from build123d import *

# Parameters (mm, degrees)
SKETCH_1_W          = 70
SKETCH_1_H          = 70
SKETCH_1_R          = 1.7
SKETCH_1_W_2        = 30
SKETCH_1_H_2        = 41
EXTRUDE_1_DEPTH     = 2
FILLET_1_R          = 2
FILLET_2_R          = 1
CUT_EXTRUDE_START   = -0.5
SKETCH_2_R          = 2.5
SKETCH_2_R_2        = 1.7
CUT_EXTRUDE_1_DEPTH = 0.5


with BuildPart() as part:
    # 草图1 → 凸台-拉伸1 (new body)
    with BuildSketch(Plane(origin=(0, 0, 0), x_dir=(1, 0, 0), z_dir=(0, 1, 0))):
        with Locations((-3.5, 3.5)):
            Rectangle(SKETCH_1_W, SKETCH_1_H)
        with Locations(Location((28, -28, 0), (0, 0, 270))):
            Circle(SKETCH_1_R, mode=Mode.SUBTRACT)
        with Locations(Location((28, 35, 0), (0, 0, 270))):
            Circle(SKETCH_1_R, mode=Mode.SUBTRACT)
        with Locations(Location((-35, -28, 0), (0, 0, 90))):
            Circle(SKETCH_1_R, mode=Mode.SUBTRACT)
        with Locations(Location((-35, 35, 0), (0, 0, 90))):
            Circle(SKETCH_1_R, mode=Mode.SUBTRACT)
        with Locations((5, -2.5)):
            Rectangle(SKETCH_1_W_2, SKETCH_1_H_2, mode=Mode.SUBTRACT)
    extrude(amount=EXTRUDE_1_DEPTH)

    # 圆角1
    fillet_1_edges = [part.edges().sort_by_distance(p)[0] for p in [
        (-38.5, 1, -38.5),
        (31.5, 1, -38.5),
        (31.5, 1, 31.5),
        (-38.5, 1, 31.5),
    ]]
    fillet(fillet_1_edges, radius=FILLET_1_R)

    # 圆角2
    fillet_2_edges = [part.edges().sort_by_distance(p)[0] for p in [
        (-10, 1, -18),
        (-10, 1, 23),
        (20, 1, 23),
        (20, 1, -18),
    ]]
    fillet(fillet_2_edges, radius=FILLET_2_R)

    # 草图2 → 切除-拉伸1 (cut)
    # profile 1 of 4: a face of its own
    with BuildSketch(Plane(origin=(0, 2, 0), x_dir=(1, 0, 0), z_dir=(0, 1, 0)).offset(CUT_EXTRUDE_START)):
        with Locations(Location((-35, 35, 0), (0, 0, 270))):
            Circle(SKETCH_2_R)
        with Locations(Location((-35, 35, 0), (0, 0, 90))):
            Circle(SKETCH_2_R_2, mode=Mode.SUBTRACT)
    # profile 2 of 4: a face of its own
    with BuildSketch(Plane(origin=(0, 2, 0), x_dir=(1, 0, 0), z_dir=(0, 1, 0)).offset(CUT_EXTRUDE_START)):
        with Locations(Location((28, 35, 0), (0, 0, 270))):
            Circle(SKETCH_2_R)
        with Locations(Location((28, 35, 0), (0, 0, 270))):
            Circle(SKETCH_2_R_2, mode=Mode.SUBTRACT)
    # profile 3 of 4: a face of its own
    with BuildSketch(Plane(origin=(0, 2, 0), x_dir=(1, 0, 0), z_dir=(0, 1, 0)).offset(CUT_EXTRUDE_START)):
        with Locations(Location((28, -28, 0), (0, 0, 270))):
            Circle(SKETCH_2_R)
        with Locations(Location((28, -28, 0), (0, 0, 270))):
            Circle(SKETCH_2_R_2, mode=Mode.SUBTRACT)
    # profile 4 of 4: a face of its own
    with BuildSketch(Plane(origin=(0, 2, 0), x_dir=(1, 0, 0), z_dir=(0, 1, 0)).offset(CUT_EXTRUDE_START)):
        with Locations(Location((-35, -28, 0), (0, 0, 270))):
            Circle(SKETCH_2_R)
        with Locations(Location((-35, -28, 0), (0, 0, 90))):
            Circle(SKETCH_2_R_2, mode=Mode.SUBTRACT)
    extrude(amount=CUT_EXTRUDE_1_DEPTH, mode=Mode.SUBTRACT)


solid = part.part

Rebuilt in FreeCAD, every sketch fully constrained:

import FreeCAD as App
import Part
import Sketcher
from FreeCAD import Vector
Q = App.Units.Quantity


def edges_at(feature, points):
    """Names of the edges that pass closest to the given points."""
    edges = feature.Shape.Edges
    near = lambda p: min(range(len(edges)), key=lambda i: edges[i].distToShape(Part.Vertex(*p))[0])
    return sorted({f"Edge{near(p) + 1}" for p in points})

doc = App.newDocument("Part")
body = doc.addObject("PartDesign::Body", "Body")

# Sketch on XZ plane
sketch1 = doc.addObject("Sketcher::SketchObject", "Sketch")
body.addObject(sketch1)
sketch1.AttachmentSupport = (doc.XZ_Plane, [""])
sketch1.MapMode = "FlatFace"
sketch1.addGeometry([
    Part.LineSegment(Vector(-38.5, -38.5, 0), Vector(-38.5, 31.5, 0)),  # 0
    Part.LineSegment(Vector(-38.5, 31.5, 0), Vector(31.5, 31.5, 0)),  # 1
    Part.LineSegment(Vector(31.5, 31.5, 0), Vector(31.5, -38.5, 0)),  # 2
    Part.LineSegment(Vector(31.5, -38.5, 0), Vector(-38.5, -38.5, 0)),  # 3
    Part.Circle(Vector(-35, 28, 0), Vector(0, 0, 1), 1.7),  # 4
    Part.Circle(Vector(28, 28, 0), Vector(0, 0, 1), 1.7),  # 5
    Part.LineSegment(Vector(20, 23, 0), Vector(-10, 23, 0)),  # 6
    Part.LineSegment(Vector(-10, 23, 0), Vector(-10, -18, 0)),  # 7
    Part.LineSegment(Vector(-10, -18, 0), Vector(20, -18, 0)),  # 8
    Part.LineSegment(Vector(20, -18, 0), Vector(20, 23, 0)),  # 9
    Part.Circle(Vector(-35, -35, 0), Vector(0, 0, 1), 1.7),  # 10
    Part.Circle(Vector(28, -35, 0), Vector(0, 0, 1), 1.7),  # 11
], False)
sketch1.addConstraint([
    Sketcher.Constraint("Coincident", 0, 2, 1, 1),
    Sketcher.Constraint("Coincident", 1, 2, 2, 1),
    Sketcher.Constraint("Coincident", 2, 2, 3, 1),
    Sketcher.Constraint("Coincident", 3, 2, 0, 1),
    Sketcher.Constraint("Coincident", 6, 2, 7, 1),
    Sketcher.Constraint("Coincident", 7, 2, 8, 1),
    Sketcher.Constraint("Coincident", 8, 2, 9, 1),
    Sketcher.Constraint("Coincident", 9, 2, 6, 1),
    Sketcher.Constraint("Vertical", 0),
    Sketcher.Constraint("Horizontal", 1),
    Sketcher.Constraint("Vertical", 2),
    Sketcher.Constraint("Horizontal", 3),
    Sketcher.Constraint("Horizontal", 6),
    Sketcher.Constraint("Vertical", 7),
    Sketcher.Constraint("Horizontal", 8),
    Sketcher.Constraint("Vertical", 9),
    Sketcher.Constraint("Equal", 4, 5),
    Sketcher.Constraint("Equal", 5, 10),
    Sketcher.Constraint("Equal", 10, 11),
    Sketcher.Constraint("Horizontal", 4, 3, 5, 3),
    Sketcher.Constraint("Horizontal", 10, 3, 11, 3),
    Sketcher.Constraint("Vertical", 4, 3, 10, 3),
    Sketcher.Constraint("Vertical", 5, 3, 11, 3),
    Sketcher.Constraint("Equal", 3, 0),
    Sketcher.Constraint("Diameter", 4, Q("3.4 mm")),
    Sketcher.Constraint("DistanceX", 1, 1, 1, 2, Q("70 mm")),
    Sketcher.Constraint("DistanceX", 6, 2, 6, 1, Q("30 mm")),
    Sketcher.Constraint("DistanceY", 7, 2, 7, 1, Q("41 mm")),
    Sketcher.Constraint("DistanceX", 4, 3, -1, 1, Q("35 mm")),
    Sketcher.Constraint("DistanceY", -1, 1, 4, 3, Q("28 mm")),
    Sketcher.Constraint("DistanceX", -1, 1, 5, 3, Q("28 mm")),
    Sketcher.Constraint("DistanceY", 10, 3, -1, 1, Q("35 mm")),
    Sketcher.Constraint("DistanceX", 6, 2, -1, 1, Q("10 mm")),
    Sketcher.Constraint("DistanceY", -1, 1, 6, 2, Q("23 mm")),
    Sketcher.Constraint("DistanceX", 0, 2, -1, 1, Q("38.5 mm")),
    Sketcher.Constraint("DistanceY", -1, 1, 0, 2, Q("31.5 mm")),
])
pad1 = doc.addObject("PartDesign::Pad", "Pad")
body.addObject(pad1)
pad1.Profile = sketch1
pad1.Length = 2
pad1.Reversed = True
doc.recompute()

fillet = doc.addObject("PartDesign::Fillet", "Fillet")
body.addObject(fillet)
fillet.Base = (pad1, edges_at(pad1, [
    (-38.5, 1, -38.5),
    (31.5, 1, -38.5),
    (31.5, 1, 31.5),
    (-38.5, 1, 31.5),
]))
fillet.Radius = 2
doc.recompute()

fillet2 = doc.addObject("PartDesign::Fillet", "Fillet001")
body.addObject(fillet2)
fillet2.Base = (fillet, edges_at(fillet, [
    (-10, 1, -18),
    (-10, 1, 23),
    (20, 1, 23),
    (20, 1, -18),
]))
fillet2.Radius = 1

# Sketch on XZ plane
sketch2 = doc.addObject("Sketcher::SketchObject", "Sketch001")
body.addObject(sketch2)
sketch2.AttachmentSupport = (doc.XZ_Plane, [""])
sketch2.MapMode = "FlatFace"
sketch2.AttachmentOffset = App.Placement(Vector(0, 0, -1.5), App.Rotation())
sketch2.addGeometry([
    Part.Circle(Vector(-35, -35, 0), Vector(0, 0, 1), 2.5),  # 0
    Part.Circle(Vector(-35, -35, 0), Vector(0, 0, 1), 1.7),  # 1
    Part.Circle(Vector(28, -35, 0), Vector(0, 0, 1), 2.5),  # 2
    Part.Circle(Vector(28, -35, 0), Vector(0, 0, 1), 1.7),  # 3
    Part.Circle(Vector(28, 28, 0), Vector(0, 0, 1), 2.5),  # 4
    Part.Circle(Vector(28, 28, 0), Vector(0, 0, 1), 1.7),  # 5
    Part.Circle(Vector(-35, 28, 0), Vector(0, 0, 1), 2.5),  # 6
    Part.Circle(Vector(-35, 28, 0), Vector(0, 0, 1), 1.7),  # 7
], False)
sketch2.addConstraint([
    Sketcher.Constraint("Coincident", 1, 3, 0, 3),
    Sketcher.Constraint("Coincident", 3, 3, 2, 3),
    Sketcher.Constraint("Coincident", 5, 3, 4, 3),
    Sketcher.Constraint("Coincident", 7, 3, 6, 3),
    Sketcher.Constraint("Equal", 0, 2),
    Sketcher.Constraint("Equal", 1, 3),
    Sketcher.Constraint("Equal", 2, 4),
    Sketcher.Constraint("Equal", 3, 5),
    Sketcher.Constraint("Equal", 4, 6),
    Sketcher.Constraint("Equal", 5, 7),
    Sketcher.Constraint("Horizontal", 1, 3, 2, 3),
    Sketcher.Constraint("Horizontal", 5, 3, 6, 3),
    Sketcher.Constraint("Vertical", 3, 3, 4, 3),
    Sketcher.Constraint("Vertical", 1, 3, 6, 3),
    Sketcher.Constraint("Diameter", 0, Q("5 mm")),
    Sketcher.Constraint("Diameter", 1, Q("3.4 mm")),
    Sketcher.Constraint("DistanceX", 0, 3, -1, 1, Q("35 mm")),
    Sketcher.Constraint("DistanceY", 0, 3, -1, 1, Q("35 mm")),
    Sketcher.Constraint("DistanceX", -1, 1, 2, 3, Q("28 mm")),
    Sketcher.Constraint("DistanceY", -1, 1, 4, 3, Q("28 mm")),
])
pocket1 = doc.addObject("PartDesign::Pocket", "Pocket")
body.addObject(pocket1)
pocket1.Profile = sketch2
pocket1.Length = 0.5

doc.recompute()
